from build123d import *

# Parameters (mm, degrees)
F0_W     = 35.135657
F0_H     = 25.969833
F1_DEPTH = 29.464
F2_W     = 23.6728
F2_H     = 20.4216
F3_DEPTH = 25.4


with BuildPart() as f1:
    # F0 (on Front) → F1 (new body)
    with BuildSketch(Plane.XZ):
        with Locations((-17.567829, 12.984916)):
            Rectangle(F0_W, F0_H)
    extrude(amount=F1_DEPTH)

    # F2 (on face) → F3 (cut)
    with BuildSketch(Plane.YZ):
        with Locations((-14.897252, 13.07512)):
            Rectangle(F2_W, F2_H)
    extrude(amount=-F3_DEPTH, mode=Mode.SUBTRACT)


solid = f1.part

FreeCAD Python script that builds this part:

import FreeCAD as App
import Part
import Sketcher
Q = App.Units.Quantity


def add_polygon(sketch, points):
    """Adds a closed chain of lines whose ends are joined by coincident constraints."""
    first, n = sketch.GeometryCount, len(points)
    for a, b in zip(points, points[1:] + points[:1]):
        sketch.addGeometry(Part.LineSegment(App.Vector(*a, 0), App.Vector(*b, 0)), False)
    for i in range(n):
        sketch.addConstraint(Sketcher.Constraint("Coincident", first + i, 2, first + (i + 1) % n, 1))

doc = App.newDocument("Part")
body = doc.addObject("PartDesign::Body", "Body")

sketch1 = body.newObject("Sketcher::SketchObject", "Sketch")
sketch1.AttachmentSupport = (doc.getObject("XZ_Plane"), [""])
sketch1.MapMode = "FlatFace"
add_polygon(sketch1, [(-35.135658, 25.969832), (-35.135658, 0), (0, 0), (0, 25.969832)])
sketch1.addConstraint([
    Sketcher.Constraint("Vertical", 0),
    Sketcher.Constraint("Horizontal", 1),
    Sketcher.Constraint("Vertical", 2),
    Sketcher.Constraint("Horizontal", 3),
    Sketcher.Constraint("Coincident", 1, 2, -1, 1),
    Sketcher.Constraint("DistanceX", 1, 1, 1, 2, 35.135657),
    Sketcher.Constraint("DistanceY", 0, 2, 0, 1, 25.969833),
])
pad1 = body.newObject("PartDesign::Pad", "Pad")
pad1.Profile = sketch1
pad1.Length = Q("1.16 in")

sketch2 = body.newObject("Sketcher::SketchObject", "Sketch001")
sketch2.AttachmentSupport = (doc.getObject("YZ_Plane"), [""])
sketch2.MapMode = "FlatFace"
add_polygon(sketch2, [(-26.733652, 23.28592), (-26.733652, 2.86432), (-3.060852, 2.86432), (-3.060852, 23.28592)])
sketch2.addConstraint([
    Sketcher.Constraint("Vertical", 0),
    Sketcher.Constraint("Horizontal", 1),
    Sketcher.Constraint("Vertical", 2),
    Sketcher.Constraint("Horizontal", 3),
    Sketcher.Constraint("DistanceX", 1, 1, 1, 2, Q("0.932 in")),
    Sketcher.Constraint("DistanceY", 0, 2, 0, 1, Q("0.804 in")),
    Sketcher.Constraint("DistanceX", 0, 2, -1, 1, 26.733652),
    Sketcher.Constraint("DistanceY", -1, 1, 0, 2, 2.86432),
])
pocket1 = body.newObject("PartDesign::Pocket", "Pocket")
pocket1.Profile = sketch2
pocket1.Length = Q("1 in")

doc.recompute()
